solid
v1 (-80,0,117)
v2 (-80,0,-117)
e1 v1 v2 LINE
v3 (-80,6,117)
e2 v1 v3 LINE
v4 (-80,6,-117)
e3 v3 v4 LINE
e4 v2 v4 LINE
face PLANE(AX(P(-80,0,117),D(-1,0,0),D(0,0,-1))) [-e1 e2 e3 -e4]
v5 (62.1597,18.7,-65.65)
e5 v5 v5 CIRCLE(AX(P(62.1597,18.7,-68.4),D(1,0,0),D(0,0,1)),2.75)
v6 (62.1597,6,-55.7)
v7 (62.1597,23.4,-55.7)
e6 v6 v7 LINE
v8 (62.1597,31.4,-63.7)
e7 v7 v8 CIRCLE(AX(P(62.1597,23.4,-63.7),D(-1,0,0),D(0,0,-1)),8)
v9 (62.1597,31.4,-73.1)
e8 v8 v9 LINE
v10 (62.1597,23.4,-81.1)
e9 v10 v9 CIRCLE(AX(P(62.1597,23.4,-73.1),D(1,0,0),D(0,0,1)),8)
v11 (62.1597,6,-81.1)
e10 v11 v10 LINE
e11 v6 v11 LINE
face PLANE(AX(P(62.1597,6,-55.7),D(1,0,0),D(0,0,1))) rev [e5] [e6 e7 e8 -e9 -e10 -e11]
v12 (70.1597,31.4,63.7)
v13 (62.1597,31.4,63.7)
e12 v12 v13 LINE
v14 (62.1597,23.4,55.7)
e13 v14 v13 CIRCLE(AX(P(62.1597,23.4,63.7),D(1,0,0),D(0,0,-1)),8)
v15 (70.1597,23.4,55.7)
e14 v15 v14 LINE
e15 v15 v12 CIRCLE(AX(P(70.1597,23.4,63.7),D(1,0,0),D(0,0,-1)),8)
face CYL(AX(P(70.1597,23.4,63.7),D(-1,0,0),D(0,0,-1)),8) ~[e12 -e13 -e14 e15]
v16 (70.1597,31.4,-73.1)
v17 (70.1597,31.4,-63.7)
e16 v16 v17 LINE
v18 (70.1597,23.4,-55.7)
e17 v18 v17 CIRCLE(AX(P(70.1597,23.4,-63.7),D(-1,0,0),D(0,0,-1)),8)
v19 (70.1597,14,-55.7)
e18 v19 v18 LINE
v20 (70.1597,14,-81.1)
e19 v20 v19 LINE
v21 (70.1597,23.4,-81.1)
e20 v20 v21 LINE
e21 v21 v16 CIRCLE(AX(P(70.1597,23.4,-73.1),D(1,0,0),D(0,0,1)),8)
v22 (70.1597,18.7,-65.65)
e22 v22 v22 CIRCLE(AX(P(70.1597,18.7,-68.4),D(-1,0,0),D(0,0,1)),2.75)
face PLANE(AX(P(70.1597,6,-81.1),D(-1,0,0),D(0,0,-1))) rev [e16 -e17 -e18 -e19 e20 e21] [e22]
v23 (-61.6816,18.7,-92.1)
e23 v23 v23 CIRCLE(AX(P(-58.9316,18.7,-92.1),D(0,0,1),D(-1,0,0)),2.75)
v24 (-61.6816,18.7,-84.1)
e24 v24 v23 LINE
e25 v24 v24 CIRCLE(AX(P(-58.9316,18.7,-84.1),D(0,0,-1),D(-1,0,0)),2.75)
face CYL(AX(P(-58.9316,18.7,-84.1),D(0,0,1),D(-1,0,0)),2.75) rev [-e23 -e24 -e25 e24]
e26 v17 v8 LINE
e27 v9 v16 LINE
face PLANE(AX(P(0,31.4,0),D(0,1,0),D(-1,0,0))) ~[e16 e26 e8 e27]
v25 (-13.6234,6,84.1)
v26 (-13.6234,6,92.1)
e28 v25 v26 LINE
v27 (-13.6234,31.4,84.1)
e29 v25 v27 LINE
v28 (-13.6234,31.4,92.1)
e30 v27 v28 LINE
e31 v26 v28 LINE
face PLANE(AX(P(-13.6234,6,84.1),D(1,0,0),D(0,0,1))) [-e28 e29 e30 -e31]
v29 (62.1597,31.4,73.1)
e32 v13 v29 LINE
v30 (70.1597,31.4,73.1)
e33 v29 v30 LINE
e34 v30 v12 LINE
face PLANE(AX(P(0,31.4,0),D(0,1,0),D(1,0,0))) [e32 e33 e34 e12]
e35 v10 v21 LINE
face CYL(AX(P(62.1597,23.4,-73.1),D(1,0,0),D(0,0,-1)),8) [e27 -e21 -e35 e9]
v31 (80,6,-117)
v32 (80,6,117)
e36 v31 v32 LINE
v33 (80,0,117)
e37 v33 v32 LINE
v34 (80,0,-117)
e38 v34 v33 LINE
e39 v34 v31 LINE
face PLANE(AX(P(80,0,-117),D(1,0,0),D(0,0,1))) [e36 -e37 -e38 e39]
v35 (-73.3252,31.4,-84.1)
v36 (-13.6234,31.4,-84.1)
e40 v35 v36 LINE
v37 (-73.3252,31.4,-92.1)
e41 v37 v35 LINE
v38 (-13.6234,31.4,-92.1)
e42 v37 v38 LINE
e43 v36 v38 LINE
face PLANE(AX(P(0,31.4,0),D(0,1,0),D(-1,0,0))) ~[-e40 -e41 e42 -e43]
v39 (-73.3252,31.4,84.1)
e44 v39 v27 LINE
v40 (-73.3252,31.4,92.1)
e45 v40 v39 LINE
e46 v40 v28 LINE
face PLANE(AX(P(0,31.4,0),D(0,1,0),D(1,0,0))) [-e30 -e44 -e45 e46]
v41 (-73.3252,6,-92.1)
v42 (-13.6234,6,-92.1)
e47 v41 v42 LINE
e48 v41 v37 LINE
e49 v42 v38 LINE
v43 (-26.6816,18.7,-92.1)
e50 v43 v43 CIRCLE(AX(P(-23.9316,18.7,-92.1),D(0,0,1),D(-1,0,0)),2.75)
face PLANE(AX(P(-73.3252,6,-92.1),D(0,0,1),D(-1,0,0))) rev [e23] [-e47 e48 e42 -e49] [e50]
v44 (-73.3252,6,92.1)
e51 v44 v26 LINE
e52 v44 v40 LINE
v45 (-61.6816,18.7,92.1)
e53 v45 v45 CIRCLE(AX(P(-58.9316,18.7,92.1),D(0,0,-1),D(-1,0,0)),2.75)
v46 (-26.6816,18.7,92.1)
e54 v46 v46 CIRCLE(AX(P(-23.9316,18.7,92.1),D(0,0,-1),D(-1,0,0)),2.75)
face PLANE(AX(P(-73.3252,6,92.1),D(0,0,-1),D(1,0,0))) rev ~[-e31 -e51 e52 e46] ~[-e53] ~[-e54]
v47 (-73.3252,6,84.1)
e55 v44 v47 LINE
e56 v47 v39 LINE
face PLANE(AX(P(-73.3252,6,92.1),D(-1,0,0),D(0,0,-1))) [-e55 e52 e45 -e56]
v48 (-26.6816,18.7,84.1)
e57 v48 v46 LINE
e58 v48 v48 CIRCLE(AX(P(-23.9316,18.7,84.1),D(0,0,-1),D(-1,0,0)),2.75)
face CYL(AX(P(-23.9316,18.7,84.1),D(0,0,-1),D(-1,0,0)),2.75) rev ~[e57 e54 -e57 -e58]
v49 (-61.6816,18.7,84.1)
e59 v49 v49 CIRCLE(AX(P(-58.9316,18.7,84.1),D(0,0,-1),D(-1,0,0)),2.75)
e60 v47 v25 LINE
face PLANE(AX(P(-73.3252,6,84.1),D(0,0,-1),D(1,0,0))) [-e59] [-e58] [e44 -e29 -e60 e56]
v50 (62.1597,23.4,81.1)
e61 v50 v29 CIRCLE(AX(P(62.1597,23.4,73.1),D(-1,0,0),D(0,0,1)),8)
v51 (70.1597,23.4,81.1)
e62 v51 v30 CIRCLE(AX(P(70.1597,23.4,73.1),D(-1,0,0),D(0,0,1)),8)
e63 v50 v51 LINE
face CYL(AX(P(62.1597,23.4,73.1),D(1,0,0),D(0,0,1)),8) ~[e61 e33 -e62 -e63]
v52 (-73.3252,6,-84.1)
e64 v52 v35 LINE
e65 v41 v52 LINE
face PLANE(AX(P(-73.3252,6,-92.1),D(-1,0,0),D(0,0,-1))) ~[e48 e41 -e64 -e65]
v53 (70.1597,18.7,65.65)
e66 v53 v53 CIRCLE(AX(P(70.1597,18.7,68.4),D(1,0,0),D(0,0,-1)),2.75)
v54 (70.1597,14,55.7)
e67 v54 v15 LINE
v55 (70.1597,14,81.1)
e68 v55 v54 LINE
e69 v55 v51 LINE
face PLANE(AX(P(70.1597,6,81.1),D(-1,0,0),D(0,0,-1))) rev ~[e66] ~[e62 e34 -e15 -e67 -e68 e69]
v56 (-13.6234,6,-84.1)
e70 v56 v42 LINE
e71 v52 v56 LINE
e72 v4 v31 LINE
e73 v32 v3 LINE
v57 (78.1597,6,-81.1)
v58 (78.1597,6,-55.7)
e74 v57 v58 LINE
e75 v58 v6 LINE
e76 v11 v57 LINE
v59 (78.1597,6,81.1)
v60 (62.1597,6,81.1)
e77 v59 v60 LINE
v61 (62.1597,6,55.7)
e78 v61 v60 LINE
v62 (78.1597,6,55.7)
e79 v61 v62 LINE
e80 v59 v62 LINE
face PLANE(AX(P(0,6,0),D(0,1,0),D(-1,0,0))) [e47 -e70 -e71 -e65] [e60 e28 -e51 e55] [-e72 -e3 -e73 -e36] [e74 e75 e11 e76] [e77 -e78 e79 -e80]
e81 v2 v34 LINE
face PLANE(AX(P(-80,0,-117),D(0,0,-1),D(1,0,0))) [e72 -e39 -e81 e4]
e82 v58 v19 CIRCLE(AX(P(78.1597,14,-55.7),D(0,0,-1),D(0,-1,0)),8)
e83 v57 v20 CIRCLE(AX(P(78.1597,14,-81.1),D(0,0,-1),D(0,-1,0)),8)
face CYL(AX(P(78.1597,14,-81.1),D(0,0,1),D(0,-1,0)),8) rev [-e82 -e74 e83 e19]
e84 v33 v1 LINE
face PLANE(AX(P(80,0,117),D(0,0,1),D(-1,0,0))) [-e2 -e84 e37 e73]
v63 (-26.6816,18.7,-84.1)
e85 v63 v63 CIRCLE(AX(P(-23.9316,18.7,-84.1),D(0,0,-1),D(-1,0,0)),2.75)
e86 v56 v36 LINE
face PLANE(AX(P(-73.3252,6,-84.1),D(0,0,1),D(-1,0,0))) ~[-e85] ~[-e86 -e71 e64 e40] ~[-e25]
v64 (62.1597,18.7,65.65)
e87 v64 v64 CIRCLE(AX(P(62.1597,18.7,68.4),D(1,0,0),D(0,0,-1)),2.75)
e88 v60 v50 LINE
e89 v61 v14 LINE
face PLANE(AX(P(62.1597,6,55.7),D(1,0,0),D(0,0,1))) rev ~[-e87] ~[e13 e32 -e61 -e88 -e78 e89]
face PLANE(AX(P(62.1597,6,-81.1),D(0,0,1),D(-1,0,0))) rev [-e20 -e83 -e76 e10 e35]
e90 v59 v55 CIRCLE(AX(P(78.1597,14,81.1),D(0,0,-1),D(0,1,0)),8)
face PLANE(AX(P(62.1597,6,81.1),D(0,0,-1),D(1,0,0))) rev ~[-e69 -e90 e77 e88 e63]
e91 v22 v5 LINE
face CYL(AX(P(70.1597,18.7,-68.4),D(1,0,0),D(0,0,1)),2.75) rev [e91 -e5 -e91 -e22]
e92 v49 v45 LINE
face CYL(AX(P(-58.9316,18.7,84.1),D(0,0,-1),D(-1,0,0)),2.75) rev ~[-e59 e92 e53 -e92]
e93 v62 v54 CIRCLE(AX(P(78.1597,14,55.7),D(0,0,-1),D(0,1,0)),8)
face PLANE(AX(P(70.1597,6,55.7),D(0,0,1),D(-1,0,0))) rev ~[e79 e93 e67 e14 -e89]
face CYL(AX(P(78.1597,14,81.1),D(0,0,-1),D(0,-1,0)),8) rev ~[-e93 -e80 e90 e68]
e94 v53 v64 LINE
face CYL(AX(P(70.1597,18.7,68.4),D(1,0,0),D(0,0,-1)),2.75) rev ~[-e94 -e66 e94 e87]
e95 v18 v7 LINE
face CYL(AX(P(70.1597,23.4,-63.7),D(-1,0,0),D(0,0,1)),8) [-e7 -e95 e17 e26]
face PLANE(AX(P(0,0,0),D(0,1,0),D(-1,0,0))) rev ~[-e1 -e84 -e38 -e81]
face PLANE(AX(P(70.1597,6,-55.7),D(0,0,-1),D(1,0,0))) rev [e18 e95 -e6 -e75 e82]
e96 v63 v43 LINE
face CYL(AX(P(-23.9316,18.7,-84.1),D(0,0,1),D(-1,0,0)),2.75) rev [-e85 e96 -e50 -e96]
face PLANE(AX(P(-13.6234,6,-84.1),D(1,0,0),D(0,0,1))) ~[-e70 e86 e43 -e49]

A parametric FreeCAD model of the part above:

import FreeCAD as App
import Part
import Sketcher
from FreeCAD import Vector
Q = App.Units.Quantity


def edges_at(feature, points):
    """Names of the edges that pass closest to the given points."""
    edges = feature.Shape.Edges
    near = lambda p: min(range(len(edges)), key=lambda i: edges[i].distToShape(Part.Vertex(*p))[0])
    return sorted({f"Edge{near(p) + 1}" for p in points})


def add_polygon(sketch, points):
    """Adds a closed chain of lines whose ends are joined by coincident constraints."""
    first, n = sketch.GeometryCount, len(points)
    for a, b in zip(points, points[1:] + points[:1]):
        sketch.addGeometry(Part.LineSegment(App.Vector(*a, 0), App.Vector(*b, 0)), False)
    for i in range(n):
        sketch.addConstraint(Sketcher.Constraint("Coincident", first + i, 2, first + (i + 1) % n, 1))

doc = App.newDocument("Part")
params = doc.addObject("Spreadsheet::Sheet", "Params")
for row, (alias, value) in enumerate([
    ("sketch1_width", "160 mm"),
    ("sketch1_height", "234 mm"),
    ("pad1_length", "6 mm"),
    ("sketch2_width", "8 mm"),
    ("sketch2_height", "25.4 mm"),
    ("pad2_length", "25.4 mm"),
    ("sketch3_diameter", "5.5 mm"),
    ("pocket1_length", "25.4 mm"),
    ("fillet_radius", "8 mm"),
    ("sketch4_height", "8 mm"),
    ("pad3_length", "25.4 mm"),
    ("sketch5_diameter", "5.5 mm"),
    ("pocket2_length", "25.4 mm"),
], start=1):
    params.set(f"A{row}", alias)
    params.set(f"B{row}", "=" + value)
    params.setAlias(f"B{row}", alias)

body = doc.addObject("PartDesign::Body", "Body")

sketch1 = body.newObject("Sketcher::SketchObject", "Sketch")
sketch1.AttachmentSupport = (doc.getObject("XZ_Plane"), [""])
sketch1.MapMode = "FlatFace"
add_polygon(sketch1, [(-80, 117), (80, 117), (80, -117), (-80, -117)])
sketch1.addConstraint(Sketcher.Constraint("Horizontal", 0))
sketch1.addConstraint(Sketcher.Constraint("Vertical", 1))
sketch1.addConstraint(Sketcher.Constraint("Horizontal", 2))
sketch1.addConstraint(Sketcher.Constraint("Vertical", 3))
sketch1.addConstraint(Sketcher.Constraint("Symmetric", 0, 2, 2, 2, -1, 1))
sketch1.addConstraint(Sketcher.Constraint("DistanceX", 0, 1, 0, 2, Q("160 mm")))
sketch1.addConstraint(Sketcher.Constraint("DistanceY", 1, 2, 1, 1, Q("234 mm")))
sketch1.setExpression("Constraints[9]", "Params.sketch1_width")
sketch1.setExpression("Constraints[10]", "Params.sketch1_height")
pad1 = body.newObject("PartDesign::Pad", "Pad")
pad1.Profile = sketch1
pad1.setExpression("Length", "Params.pad1_length")
pad1.Reversed = True

sketch2 = body.newObject("Sketcher::SketchObject", "Sketch001")
sketch2.AttachmentSupport = (doc.getObject("XZ_Plane"), [""])
sketch2.MapMode = "FlatFace"
sketch2.AttachmentOffset = App.Placement(Vector(0, 0, -6), App.Rotation())
add_polygon(sketch2, [(62, 56), (62, 81), (70, 81), (70, 56)])
sketch2.addConstraint(Sketcher.Constraint("Vertical", 0))
sketch2.addConstraint(Sketcher.Constraint("Horizontal", 1))
sketch2.addConstraint(Sketcher.Constraint("Vertical", 2))
sketch2.addConstraint(Sketcher.Constraint("Horizontal", 3))
sketch2.addConstraint(Sketcher.Constraint("DistanceX", 1, 1, 1, 2, Q("8 mm")))
sketch2.addConstraint(Sketcher.Constraint("DistanceY", 0, 1, 0, 2, Q("25.4 mm")))
sketch2.addConstraint(Sketcher.Constraint("DistanceY", -1, 1, 0, 2, Q("81.1 mm")))
sketch2.addConstraint(Sketcher.Constraint("DistanceX", -1, 1, 0, 2, Q("62.1597 mm")))
sketch2.setExpression("Constraints[8]", "Params.sketch2_width")
sketch2.setExpression("Constraints[9]", "Params.sketch2_height")
pad2 = body.newObject("PartDesign::Pad", "Pad001")
pad2.Profile = sketch2
pad2.setExpression("Length", "Params.pad2_length")
pad2.Reversed = True

sketch3 = body.newObject("Sketcher::SketchObject", "Sketch002")
sketch3.AttachmentSupport = (doc.getObject("YZ_Plane"), [""])
sketch3.MapMode = "FlatFace"
sketch3.AttachmentOffset = App.Placement(Vector(0, 0, 70.1597), App.Rotation())
sketch3.addGeometry(Part.Circle(Vector(18.7, 68.4, 0), Vector(0, 0, 1), 2.8), False)
sketch3.addConstraint(Sketcher.Constraint("Diameter", 0, Q("5.5 mm")))
sketch3.addConstraint(Sketcher.Constraint("DistanceX", -1, 1, 0, 3, Q("18.7 mm")))
sketch3.addConstraint(Sketcher.Constraint("DistanceY", -1, 1, 0, 3, Q("68.4 mm")))
sketch3.setExpression("Constraints[0]", "Params.sketch3_diameter")
pocket1 = body.newObject("PartDesign::Pocket", "Pocket")
pocket1.Profile = sketch3
pocket1.setExpression("Length", "Params.pocket1_length")
doc.recompute()

fillet = body.newObject("PartDesign::Fillet", "Fillet")
fillet.Base = (pocket1, edges_at(pocket1, [(70.16, 6, 68.4), (66.16, 31.4, 55.7), (66.16, 31.4, 81.1)]))
fillet.setExpression("Radius", "Params.fillet_radius")

sketch4 = body.newObject("Sketcher::SketchObject", "Sketch003")
sketch4.AttachmentSupport = (doc.getObject("XZ_Plane"), [""])
sketch4.MapMode = "FlatFace"
sketch4.AttachmentOffset = App.Placement(Vector(0, 0, -6), App.Rotation())
add_polygon(sketch4, [(-73, 84), (-73, 92), (-14, 92), (-14, 84)])
sketch4.addConstraint(Sketcher.Constraint("Vertical", 0))
sketch4.addConstraint(Sketcher.Constraint("Horizontal", 1))
sketch4.addConstraint(Sketcher.Constraint("Vertical", 2))
sketch4.addConstraint(Sketcher.Constraint("Horizontal", 3))
sketch4.addConstraint(Sketcher.Constraint("DistanceY", 0, 1, 0, 2, Q("8 mm")))
sketch4.addConstraint(Sketcher.Constraint("DistanceY", -1, 1, 0, 2, Q("92.1 mm")))
sketch4.addConstraint(Sketcher.Constraint("DistanceX", 1, 1, 1, 2, Q("59.7018 mm")))
sketch4.addConstraint(Sketcher.Constraint("DistanceX", 0, 2, -1, 1, Q("73.3252 mm")))
sketch4.setExpression("Constraints[8]", "Params.sketch4_height")
pad3 = body.newObject("PartDesign::Pad", "Pad002")
pad3.Profile = sketch4
pad3.setExpression("Length", "Params.pad3_length")
pad3.Reversed = True

sketch5 = body.newObject("Sketcher::SketchObject", "Sketch004")
sketch5.AttachmentSupport = (doc.getObject("XY_Plane"), [""])
sketch5.MapMode = "FlatFace"
sketch5.AttachmentOffset = App.Placement(Vector(0, 0, 84.1), App.Rotation())
sketch5.addGeometry(Part.Circle(Vector(-23.9, 18.7, 0), Vector(0, 0, 1), 2.8), False)
sketch5.addGeometry(Part.Circle(Vector(-58.9, 18.7, 0), Vector(0, 0, 1), 2.8), False)
sketch5.addGeometry(Part.Circle(Vector(-93.9, 18.7, 0), Vector(0, 0, 1), 2.8), False)
sketch5.addConstraint(Sketcher.Constraint("Equal", 0, 1))
sketch5.addConstraint(Sketcher.Constraint("Equal", 1, 2))
sketch5.addConstraint(Sketcher.Constraint("Horizontal", 0, 3, 1, 3))
sketch5.addConstraint(Sketcher.Constraint("Horizontal", 1, 3, 2, 3))
sketch5.addConstraint(Sketcher.Constraint("Diameter", 0, Q("5.5 mm")))
sketch5.addConstraint(Sketcher.Constraint("DistanceX", 1, 3, 0, 3, Q("35 mm")))
sketch5.addConstraint(Sketcher.Constraint("DistanceX", 2, 3, 1, 3, Q("35 mm")))
sketch5.addConstraint(Sketcher.Constraint("DistanceY", -1, 1, 0, 3, Q("18.7 mm")))
sketch5.addConstraint(Sketcher.Constraint("DistanceX", 0, 3, -1, 1, Q("23.9316 mm")))
sketch5.setExpression("Constraints[4]", "Params.sketch5_diameter")
pocket2 = body.newObject("PartDesign::Pocket", "Pocket001")
pocket2.Profile = sketch5
pocket2.setExpression("Length", "Params.pocket2_length")
pocket2.Reversed = True
doc.recompute()

mirrored = body.newObject("PartDesign::Mirrored", "Mirrored")
mirrored.Originals = [pad2, pocket1, fillet, pad3, pocket2]
mirrored.MirrorPlane = (doc.getObject("XY_Plane"), [""])
body.Tip = mirrored

doc.recompute()
